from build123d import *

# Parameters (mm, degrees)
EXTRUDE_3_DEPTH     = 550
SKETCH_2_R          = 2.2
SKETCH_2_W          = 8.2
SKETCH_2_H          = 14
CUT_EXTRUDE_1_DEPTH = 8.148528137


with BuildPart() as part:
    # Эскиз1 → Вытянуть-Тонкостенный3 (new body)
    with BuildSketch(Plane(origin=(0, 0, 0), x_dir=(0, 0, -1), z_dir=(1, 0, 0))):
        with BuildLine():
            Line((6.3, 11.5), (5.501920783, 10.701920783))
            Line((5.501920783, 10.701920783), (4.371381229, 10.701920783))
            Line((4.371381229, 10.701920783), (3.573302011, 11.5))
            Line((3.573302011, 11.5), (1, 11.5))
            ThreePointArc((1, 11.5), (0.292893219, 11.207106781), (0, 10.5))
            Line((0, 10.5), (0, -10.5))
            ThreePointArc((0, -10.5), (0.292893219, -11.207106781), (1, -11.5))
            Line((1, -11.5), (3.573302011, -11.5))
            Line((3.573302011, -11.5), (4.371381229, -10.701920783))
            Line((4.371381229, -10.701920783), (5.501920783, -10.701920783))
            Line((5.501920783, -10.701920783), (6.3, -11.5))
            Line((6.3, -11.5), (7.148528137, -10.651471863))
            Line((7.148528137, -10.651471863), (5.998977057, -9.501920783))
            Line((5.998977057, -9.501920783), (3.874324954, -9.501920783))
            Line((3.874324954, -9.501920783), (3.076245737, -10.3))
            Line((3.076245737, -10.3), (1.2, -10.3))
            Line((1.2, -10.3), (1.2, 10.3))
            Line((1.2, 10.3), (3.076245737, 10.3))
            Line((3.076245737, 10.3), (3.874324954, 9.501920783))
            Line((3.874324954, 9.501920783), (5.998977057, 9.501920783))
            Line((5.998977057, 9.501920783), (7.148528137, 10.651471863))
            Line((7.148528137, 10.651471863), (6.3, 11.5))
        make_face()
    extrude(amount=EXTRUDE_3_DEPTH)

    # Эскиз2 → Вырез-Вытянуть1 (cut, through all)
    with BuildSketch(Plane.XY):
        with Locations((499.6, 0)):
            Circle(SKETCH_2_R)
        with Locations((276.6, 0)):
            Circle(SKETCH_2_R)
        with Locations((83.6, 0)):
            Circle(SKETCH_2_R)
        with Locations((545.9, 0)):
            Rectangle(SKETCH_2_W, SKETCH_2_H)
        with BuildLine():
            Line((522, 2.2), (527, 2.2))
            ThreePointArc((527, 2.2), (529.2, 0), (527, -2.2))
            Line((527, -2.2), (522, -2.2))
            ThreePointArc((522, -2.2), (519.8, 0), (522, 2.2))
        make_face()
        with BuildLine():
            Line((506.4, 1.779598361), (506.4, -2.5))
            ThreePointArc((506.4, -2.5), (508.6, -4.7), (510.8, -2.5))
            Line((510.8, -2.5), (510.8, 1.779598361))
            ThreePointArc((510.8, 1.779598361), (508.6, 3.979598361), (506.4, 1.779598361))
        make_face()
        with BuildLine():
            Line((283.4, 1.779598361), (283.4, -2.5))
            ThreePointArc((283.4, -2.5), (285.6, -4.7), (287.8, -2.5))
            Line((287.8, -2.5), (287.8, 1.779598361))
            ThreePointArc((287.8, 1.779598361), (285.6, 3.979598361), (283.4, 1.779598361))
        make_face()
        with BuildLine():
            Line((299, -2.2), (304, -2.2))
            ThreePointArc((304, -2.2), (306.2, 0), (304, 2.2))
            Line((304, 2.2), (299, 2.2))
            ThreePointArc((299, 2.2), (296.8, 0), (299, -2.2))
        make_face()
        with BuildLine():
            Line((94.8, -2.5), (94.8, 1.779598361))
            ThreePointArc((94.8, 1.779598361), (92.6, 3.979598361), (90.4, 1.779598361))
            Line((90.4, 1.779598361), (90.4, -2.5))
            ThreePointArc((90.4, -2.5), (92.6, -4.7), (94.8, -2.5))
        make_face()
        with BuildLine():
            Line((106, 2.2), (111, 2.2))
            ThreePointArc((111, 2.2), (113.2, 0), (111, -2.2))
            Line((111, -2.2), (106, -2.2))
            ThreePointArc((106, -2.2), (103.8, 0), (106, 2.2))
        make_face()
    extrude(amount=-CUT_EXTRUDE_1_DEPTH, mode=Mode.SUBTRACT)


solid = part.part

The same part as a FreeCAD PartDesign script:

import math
import FreeCAD as App
import Part
import Sketcher
from FreeCAD import Vector

doc = App.newDocument("Part")
params = doc.addObject("Spreadsheet::Sheet", "Params")
for row, (alias, value) in enumerate([
    ("sketch1_radius", "1 mm"),
    ("sketch1_width", "21 mm"),
    ("sketch1_width2", "20.6 mm"),
    ("sketch1_length", "1.2 mm"),
    ("pad1_length", "550 mm"),
    ("sketch2_diameter", "4.4 mm"),
    ("sketch2_width", "5 mm"),
    ("sketch2_height", "14 mm"),
    ("sketch2_width2", "8.2 mm"),
], start=1):
    params.set(f"A{row}", alias)
    params.set(f"B{row}", "=" + value)
    params.setAlias(f"B{row}", alias)

body = doc.addObject("PartDesign::Body", "Body")

sketch1 = body.newObject("Sketcher::SketchObject", "Sketch")
sketch1.AttachmentSupport = (doc.getObject("YZ_Plane"), [""])
sketch1.MapMode = "FlatFace"
sketch1.addGeometry([
    Part.LineSegment(Vector(11.5, -6.3, 0), Vector(10.701921, -5.501921, 0)),
    Part.LineSegment(Vector(10.701921, -5.501921, 0), Vector(10.701921, -4.371381, 0)),
    Part.LineSegment(Vector(10.701921, -4.371381, 0), Vector(11.5, -3.573302, 0)),
    Part.LineSegment(Vector(11.5, -3.573302, 0), Vector(11.5, -1, 0)),
    Part.ArcOfCircle(Part.Circle(Vector(10.5, -1, 0), Vector(0, 0, 1), 1), math.radians(0), math.radians(90)),
    Part.LineSegment(Vector(10.5, 0, 0), Vector(-10.5, 0, 0)),
    Part.ArcOfCircle(Part.Circle(Vector(-10.5, -1, 0), Vector(0, 0, 1), 1), math.radians(90), math.radians(180)),
    Part.LineSegment(Vector(-11.5, -1, 0), Vector(-11.5, -3.573302, 0)),
    Part.LineSegment(Vector(-11.5, -3.573302, 0), Vector(-10.701921, -4.371381, 0)),
    Part.LineSegment(Vector(-10.701921, -4.371381, 0), Vector(-10.701921, -5.501921, 0)),
    Part.LineSegment(Vector(-10.701921, -5.501921, 0), Vector(-11.5, -6.3, 0)),
    Part.LineSegment(Vector(-11.5, -6.3, 0), Vector(-10.651472, -7.148528, 0)),
    Part.LineSegment(Vector(-10.651472, -7.148528, 0), Vector(-9.501921, -5.998977, 0)),
    Part.LineSegment(Vector(-9.501921, -5.998977, 0), Vector(-9.501921, -3.874325, 0)),
    Part.LineSegment(Vector(-9.501921, -3.874325, 0), Vector(-10.3, -3.076246, 0)),
    Part.LineSegment(Vector(-10.3, -3.076246, 0), Vector(-10.3, -1.2, 0)),
    Part.LineSegment(Vector(-10.3, -1.2, 0), Vector(10.3, -1.2, 0)),
    Part.LineSegment(Vector(10.3, -1.2, 0), Vector(10.3, -3.076246, 0)),
    Part.LineSegment(Vector(10.3, -3.076246, 0), Vector(9.501921, -3.874325, 0)),
    Part.LineSegment(Vector(9.501921, -3.874325, 0), Vector(9.501921, -5.998977, 0)),
    Part.LineSegment(Vector(9.501921, -5.998977, 0), Vector(10.651472, -7.148528, 0)),
    Part.LineSegment(Vector(10.651472, -7.148528, 0), Vector(11.5, -6.3, 0)),
], False)
sketch1.addConstraint([
    Sketcher.Constraint("Coincident", 0, 2, 1, 1),
    Sketcher.Constraint("Coincident", 1, 2, 2, 1),
    Sketcher.Constraint("Coincident", 2, 2, 3, 1),
    Sketcher.Constraint("Tangent", 3, 2, 4, 1),
    Sketcher.Constraint("Tangent", 4, 2, 5, 1),
    Sketcher.Constraint("Tangent", 5, 2, 6, 1),
    Sketcher.Constraint("Tangent", 6, 2, 7, 1),
    Sketcher.Constraint("Coincident", 7, 2, 8, 1),
    Sketcher.Constraint("Coincident", 8, 2, 9, 1),
    Sketcher.Constraint("Coincident", 9, 2, 10, 1),
    Sketcher.Constraint("Coincident", 10, 2, 11, 1),
    Sketcher.Constraint("Coincident", 11, 2, 12, 1),
    Sketcher.Constraint("Coincident", 12, 2, 13, 1),
    Sketcher.Constraint("Coincident", 13, 2, 14, 1),
    Sketcher.Constraint("Coincident", 14, 2, 15, 1),
    Sketcher.Constraint("Coincident", 15, 2, 16, 1),
    Sketcher.Constraint("Coincident", 16, 2, 17, 1),
    Sketcher.Constraint("Coincident", 17, 2, 18, 1),
    Sketcher.Constraint("Coincident", 18, 2, 19, 1),
    Sketcher.Constraint("Coincident", 19, 2, 20, 1),
    Sketcher.Constraint("Coincident", 20, 2, 21, 1),
    Sketcher.Constraint("Coincident", 21, 2, 0, 1),
    Sketcher.Constraint("Vertical", 1),
    Sketcher.Constraint("Vertical", 3),
    Sketcher.Constraint("Horizontal", 5),
    Sketcher.Constraint("Vertical", 7),
    Sketcher.Constraint("Vertical", 9),
    Sketcher.Constraint("Vertical", 13),
    Sketcher.Constraint("Vertical", 15),
    Sketcher.Constraint("Horizontal", 16),
    Sketcher.Constraint("Vertical", 17),
    Sketcher.Constraint("Vertical", 19),
    Sketcher.Constraint("Equal", 4, 6),
    Sketcher.Constraint("Symmetric", 4, 2, 5, 2, -1, 1),
    Sketcher.Constraint("Symmetric", 1, 2, 8, 2, -2),
    Sketcher.Constraint("Symmetric", 14, 2, 17, 2, -2),
    Sketcher.Constraint("Symmetric", 13, 2, 18, 2, -2),
    Sketcher.Constraint("Symmetric", 11, 2, 20, 2, -2),
    Sketcher.Constraint("Symmetric", 10, 2, 21, 2, -2),
    Sketcher.Constraint("Perpendicular", 0, 2),
    Sketcher.Constraint("Perpendicular", 2, 8),
    Sketcher.Constraint("Perpendicular", 8, 10),
    Sketcher.Constraint("Perpendicular", 10, 11),
    Sketcher.Constraint("Perpendicular", 11, 12),
    Sketcher.Constraint("Perpendicular", 12, 14),
    Sketcher.Constraint("Perpendicular", 14, 18),
    Sketcher.Constraint("Perpendicular", 18, 20),
    Sketcher.Constraint("Vertical", 7, 2, 10, 2),
    Sketcher.Constraint("Equal", 10, 14),
    Sketcher.Constraint("Radius", 4, 1.0),
    Sketcher.Constraint("DistanceX", 5, 2, 5, 1, 21.0),
    Sketcher.Constraint("DistanceX", 16, 1, 16, 2, 20.6),
    Sketcher.Constraint("Distance", 11, 1.2),
    Sketcher.Constraint("DistanceY", 10, 2, -1, 1, 6.3),
    Sketcher.Constraint("DistanceY", 15, 2, -1, 1, 1.2),
    Sketcher.Constraint("DistanceY", 1, 1, 1, 2, 1.13054),
    Sketcher.Constraint("Distance", 12, 1.625711),
    Sketcher.Constraint("DistanceY", 13, 1, 13, 2, 2.124652),
])
sketch1.setExpression("Constraints[49]", "Params.sketch1_radius")
sketch1.setExpression("Constraints[50]", "Params.sketch1_width")
sketch1.setExpression("Constraints[51]", "Params.sketch1_width2")
sketch1.setExpression("Constraints[52]", "Params.sketch1_length")
pad1 = body.newObject("PartDesign::Pad", "Pad")
pad1.Profile = sketch1
pad1.setExpression("Length", "Params.pad1_length")

sketch2 = body.newObject("Sketcher::SketchObject", "Sketch001")
sketch2.AttachmentSupport = (doc.getObject("XY_Plane"), [""])
sketch2.MapMode = "FlatFace"
sketch2.addGeometry([
    Part.Circle(Vector(499.6, 0, 0), Vector(0, 0, 1), 2.2),
    Part.Circle(Vector(276.6, 0, 0), Vector(0, 0, 1), 2.2),
    Part.Circle(Vector(83.6, 0, 0), Vector(0, 0, 1), 2.2),
    Part.LineSegment(Vector(541.8, 7, 0), Vector(541.8, -7, 0)),
    Part.LineSegment(Vector(541.8, -7, 0), Vector(550, -7, 0)),
    Part.LineSegment(Vector(550, -7, 0), Vector(550, 7, 0)),
    Part.LineSegment(Vector(550, 7, 0), Vector(541.8, 7, 0)),
    Part.LineSegment(Vector(527, 2.2, 0), Vector(522, 2.2, 0)),
    Part.ArcOfCircle(Part.Circle(Vector(522, 0, 0), Vector(0, 0, 1), 2.2), math.radians(90), math.radians(270)),
    Part.LineSegment(Vector(522, -2.2, 0), Vector(527, -2.2, 0)),
    Part.ArcOfCircle(Part.Circle(Vector(527, 0, 0), Vector(0, 0, 1), 2.2), math.radians(-90), math.radians(90)),
    Part.LineSegment(Vector(506.4, 1.779598, 0), Vector(506.4, -2.5, 0)),
    Part.ArcOfCircle(Part.Circle(Vector(508.6, -2.5, 0), Vector(0, 0, 1), 2.2), math.radians(180), math.radians(360)),
    Part.LineSegment(Vector(510.8, -2.5, 0), Vector(510.8, 1.779598, 0)),
    Part.ArcOfCircle(Part.Circle(Vector(508.6, 1.779598, 0), Vector(0, 0, 1), 2.2), math.radians(0), math.radians(180)),
    Part.LineSegment(Vector(283.4, 1.779598, 0), Vector(283.4, -2.5, 0)),
    Part.ArcOfCircle(Part.Circle(Vector(285.6, -2.5, 0), Vector(0, 0, 1), 2.2), math.radians(180), math.radians(360)),
    Part.LineSegment(Vector(287.8, -2.5, 0), Vector(287.8, 1.779598, 0)),
    Part.ArcOfCircle(Part.Circle(Vector(285.6, 1.779598, 0), Vector(0, 0, 1), 2.2), math.radians(0), math.radians(180)),
    Part.LineSegment(Vector(299, -2.2, 0), Vector(304, -2.2, 0)),
    Part.ArcOfCircle(Part.Circle(Vector(304, 0, 0), Vector(0, 0, 1), 2.2), math.radians(-90), math.radians(90)),
    Part.LineSegment(Vector(304, 2.2, 0), Vector(299, 2.2, 0)),
    Part.ArcOfCircle(Part.Circle(Vector(299, 0, 0), Vector(0, 0, 1), 2.2), math.radians(90), math.radians(270)),
    Part.LineSegment(Vector(94.8, -2.5, 0), Vector(94.8, 1.779598, 0)),
    Part.ArcOfCircle(Part.Circle(Vector(92.6, 1.779598, 0), Vector(0, 0, 1), 2.2), math.radians(0), math.radians(180)),
    Part.LineSegment(Vector(90.4, 1.779598, 0), Vector(90.4, -2.5, 0)),
    Part.ArcOfCircle(Part.Circle(Vector(92.6, -2.5, 0), Vector(0, 0, 1), 2.2), math.radians(180), math.radians(360)),
    Part.LineSegment(Vector(111, 2.2, 0), Vector(106, 2.2, 0)),
    Part.ArcOfCircle(Part.Circle(Vector(106, 0, 0), Vector(0, 0, 1), 2.2), math.radians(90), math.radians(270)),
    Part.LineSegment(Vector(106, -2.2, 0), Vector(111, -2.2, 0)),
    Part.ArcOfCircle(Part.Circle(Vector(111, 0, 0), Vector(0, 0, 1), 2.2), math.radians(-90), math.radians(90)),
], False)
sketch2.addConstraint([
    Sketcher.Constraint("Coincident", 3, 2, 4, 1),
    Sketcher.Constraint("Coincident", 4, 2, 5, 1),
    Sketcher.Constraint("Coincident", 5, 2, 6, 1),
    Sketcher.Constraint("Coincident", 6, 2, 3, 1),
    Sketcher.Constraint("Tangent", 7, 2, 8, 1),
    Sketcher.Constraint("Tangent", 8, 2, 9, 1),
    Sketcher.Constraint("Tangent", 9, 2, 10, 1),
    Sketcher.Constraint("Tangent", 10, 2, 7, 1),
    Sketcher.Constraint("Tangent", 11, 2, 12, 1),
    Sketcher.Constraint("Tangent", 12, 2, 13, 1),
    Sketcher.Constraint("Tangent", 13, 2, 14, 1),
    Sketcher.Constraint("Tangent", 14, 2, 11, 1),
    Sketcher.Constraint("Tangent", 15, 2, 16, 1),
    Sketcher.Constraint("Tangent", 16, 2, 17, 1),
    Sketcher.Constraint("Tangent", 17, 2, 18, 1),
    Sketcher.Constraint("Tangent", 18, 2, 15, 1),
    Sketcher.Constraint("Tangent", 19, 2, 20, 1),
    Sketcher.Constraint("Tangent", 20, 2, 21, 1),
    Sketcher.Constraint("Tangent", 21, 2, 22, 1),
    Sketcher.Constraint("Tangent", 22, 2, 19, 1),
    Sketcher.Constraint("Tangent", 23, 2, 24, 1),
    Sketcher.Constraint("Tangent", 24, 2, 25, 1),
    Sketcher.Constraint("Tangent", 25, 2, 26, 1),
    Sketcher.Constraint("Tangent", 26, 2, 23, 1),
    Sketcher.Constraint("Tangent", 27, 2, 28, 1),
    Sketcher.Constraint("Tangent", 28, 2, 29, 1),
    Sketcher.Constraint("Tangent", 29, 2, 30, 1),
    Sketcher.Constraint("Tangent", 30, 2, 27, 1),
    Sketcher.Constraint("Vertical", 3),
    Sketcher.Constraint("Horizontal", 4),
    Sketcher.Constraint("Vertical", 5),
    Sketcher.Constraint("Horizontal", 6),
    Sketcher.Constraint("Horizontal", 7),
    Sketcher.Constraint("Horizontal", 9),
    Sketcher.Constraint("Vertical", 11),
    Sketcher.Constraint("Vertical", 13),
    Sketcher.Constraint("Vertical", 15),
    Sketcher.Constraint("Vertical", 17),
    Sketcher.Constraint("Horizontal", 19),
    Sketcher.Constraint("Horizontal", 21),
    Sketcher.Constraint("Vertical", 23),
    Sketcher.Constraint("Vertical", 25),
    Sketcher.Constraint("Horizontal", 27),
    Sketcher.Constraint("Horizontal", 29),
    Sketcher.Constraint("Equal", 0, 1),
    Sketcher.Constraint("Equal", 1, 2),
    Sketcher.Constraint("Equal", 2, 8),
    Sketcher.Constraint("Equal", 10, 12),
    Sketcher.Constraint("Equal", 14, 16),
    Sketcher.Constraint("Equal", 18, 20),
    Sketcher.Constraint("Equal", 22, 24),
    Sketcher.Constraint("Equal", 26, 28),
    Sketcher.Constraint("PointOnObject", 0, 3, -1),
    Sketcher.Constraint("PointOnObject", 1, 3, -1),
    Sketcher.Constraint("PointOnObject", 2, 3, -1),
    Sketcher.Constraint("PointOnObject", 8, 3, -1),
    Sketcher.Constraint("PointOnObject", 20, 3, -1),
    Sketcher.Constraint("PointOnObject", 28, 3, -1),
    Sketcher.Constraint("Horizontal", 12, 3, 16, 3),
    Sketcher.Constraint("Horizontal", 14, 3, 18, 3),
    Sketcher.Constraint("Horizontal", 18, 3, 24, 3),
    Sketcher.Constraint("Horizontal", 16, 3, 26, 3),
    Sketcher.Constraint("Equal", 9, 19),
    Sketcher.Constraint("Equal", 21, 27),
    Sketcher.Constraint("Diameter", 0, 4.4),
    Sketcher.Constraint("DistanceX", 7, 2, 7, 1, 5.0),
    Sketcher.Constraint("DistanceY", 3, 2, 3, 1, 14.0),
    Sketcher.Constraint("DistanceX", 4, 1, 4, 2, 8.2),
    Sketcher.Constraint("DistanceX", -1, 1, 8, 3, 522.0),
    Sketcher.Constraint("DistanceX", -1, 1, 20, 3, 304.0),
    Sketcher.Constraint("DistanceX", -1, 1, 28, 3, 106.0),
    Sketcher.Constraint("DistanceY", 3, 2, -1, 1, 7.0),
    Sketcher.Constraint("DistanceX", -1, 1, 4, 2, 550.0),
    Sketcher.Constraint("DistanceX", 1, 3, 0, 3, 223.0),
    Sketcher.Constraint("DistanceX", 2, 3, 1, 3, 193.0),
    Sketcher.Constraint("DistanceX", 0, 3, 12, 3, 9.0),
    Sketcher.Constraint("DistanceX", 1, 3, 16, 3, 9.0),
    Sketcher.Constraint("DistanceX", 2, 3, 24, 3, 9.0),
    Sketcher.Constraint("DistanceX", -1, 1, 0, 3, 499.6),
    Sketcher.Constraint("DistanceY", 12, 3, -1, 1, 2.5),
    Sketcher.Constraint("DistanceY", 11, 2, 11, 1, 4.279598),
])
sketch2.setExpression("Constraints[64]", "Params.sketch2_diameter")
sketch2.setExpression("Constraints[65]", "Params.sketch2_width")
sketch2.setExpression("Constraints[66]", "Params.sketch2_height")
sketch2.setExpression("Constraints[67]", "Params.sketch2_width2")
pocket1 = body.newObject("PartDesign::Pocket", "Pocket")
pocket1.Profile = sketch2
pocket1.Type = "ThroughAll"

doc.recompute()
